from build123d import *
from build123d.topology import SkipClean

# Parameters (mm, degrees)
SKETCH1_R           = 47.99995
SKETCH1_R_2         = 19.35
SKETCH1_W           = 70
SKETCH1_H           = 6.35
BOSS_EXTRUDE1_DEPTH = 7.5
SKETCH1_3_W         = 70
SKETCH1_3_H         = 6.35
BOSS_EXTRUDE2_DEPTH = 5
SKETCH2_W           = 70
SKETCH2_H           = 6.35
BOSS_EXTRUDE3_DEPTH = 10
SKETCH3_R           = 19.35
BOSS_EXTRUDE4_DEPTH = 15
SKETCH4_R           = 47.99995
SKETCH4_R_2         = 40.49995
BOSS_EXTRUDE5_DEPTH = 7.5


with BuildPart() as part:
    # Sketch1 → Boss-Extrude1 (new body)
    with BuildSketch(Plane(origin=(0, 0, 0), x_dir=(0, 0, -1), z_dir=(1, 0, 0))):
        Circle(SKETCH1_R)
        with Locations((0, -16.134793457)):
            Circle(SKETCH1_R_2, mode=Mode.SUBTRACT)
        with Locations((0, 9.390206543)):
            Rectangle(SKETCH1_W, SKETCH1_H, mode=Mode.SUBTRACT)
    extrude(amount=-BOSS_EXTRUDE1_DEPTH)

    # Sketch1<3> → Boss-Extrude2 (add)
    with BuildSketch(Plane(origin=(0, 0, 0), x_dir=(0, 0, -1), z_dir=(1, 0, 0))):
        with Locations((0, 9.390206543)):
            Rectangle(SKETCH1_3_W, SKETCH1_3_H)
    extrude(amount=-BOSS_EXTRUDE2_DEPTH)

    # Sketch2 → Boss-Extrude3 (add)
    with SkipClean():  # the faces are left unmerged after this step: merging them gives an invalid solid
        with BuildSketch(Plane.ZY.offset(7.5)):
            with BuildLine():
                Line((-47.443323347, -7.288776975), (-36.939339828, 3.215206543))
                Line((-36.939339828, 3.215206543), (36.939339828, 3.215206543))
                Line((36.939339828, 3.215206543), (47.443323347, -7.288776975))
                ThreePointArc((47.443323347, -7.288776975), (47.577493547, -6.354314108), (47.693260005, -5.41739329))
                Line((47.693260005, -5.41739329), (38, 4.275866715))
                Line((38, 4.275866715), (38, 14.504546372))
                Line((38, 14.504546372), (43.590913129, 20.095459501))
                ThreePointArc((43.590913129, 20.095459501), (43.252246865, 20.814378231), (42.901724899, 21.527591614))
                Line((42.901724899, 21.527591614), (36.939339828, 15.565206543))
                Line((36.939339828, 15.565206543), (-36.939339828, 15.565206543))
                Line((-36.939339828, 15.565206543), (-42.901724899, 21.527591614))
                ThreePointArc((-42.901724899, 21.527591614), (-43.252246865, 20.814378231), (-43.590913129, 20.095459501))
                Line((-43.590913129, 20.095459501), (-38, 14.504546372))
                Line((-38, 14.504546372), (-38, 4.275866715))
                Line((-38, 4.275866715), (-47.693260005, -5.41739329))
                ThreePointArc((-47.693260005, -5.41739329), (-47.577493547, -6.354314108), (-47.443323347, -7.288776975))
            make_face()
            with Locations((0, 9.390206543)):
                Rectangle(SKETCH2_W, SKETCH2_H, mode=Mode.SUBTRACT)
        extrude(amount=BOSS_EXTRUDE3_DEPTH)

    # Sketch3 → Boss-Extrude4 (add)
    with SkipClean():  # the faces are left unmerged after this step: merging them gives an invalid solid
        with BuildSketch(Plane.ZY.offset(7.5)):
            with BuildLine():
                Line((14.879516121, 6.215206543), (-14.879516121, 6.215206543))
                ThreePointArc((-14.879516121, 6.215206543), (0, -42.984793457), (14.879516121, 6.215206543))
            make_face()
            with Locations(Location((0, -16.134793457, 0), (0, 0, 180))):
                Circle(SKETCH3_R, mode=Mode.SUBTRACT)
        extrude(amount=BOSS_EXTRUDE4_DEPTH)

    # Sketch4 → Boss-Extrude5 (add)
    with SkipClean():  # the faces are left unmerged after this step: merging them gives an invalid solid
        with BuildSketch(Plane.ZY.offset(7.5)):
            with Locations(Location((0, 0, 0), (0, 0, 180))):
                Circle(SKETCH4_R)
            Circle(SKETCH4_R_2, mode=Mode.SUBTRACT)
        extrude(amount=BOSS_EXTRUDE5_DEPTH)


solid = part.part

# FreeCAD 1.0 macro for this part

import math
import FreeCAD as App
import Part
import Sketcher

V = App.Vector


def add_polygon(sketch, points):
    """Adds a closed chain of lines whose ends are joined by coincident constraints."""
    first, n = sketch.GeometryCount, len(points)
    for a, b in zip(points, points[1:] + points[:1]):
        sketch.addGeometry(Part.LineSegment(App.Vector(*a, 0), App.Vector(*b, 0)), False)
    for i in range(n):
        sketch.addConstraint(Sketcher.Constraint("Coincident", first + i, 2, first + (i + 1) % n, 1))

doc = App.newDocument("Part")
body = doc.addObject("PartDesign::Body", "Body")

sketch1 = body.newObject("Sketcher::SketchObject", "Sketch")
sketch1.AttachmentSupport = (doc.getObject("YZ_Plane"), [""])
sketch1.MapMode = "FlatFace"
sketch1.addGeometry(Part.Circle(V(0, 0, 0), V(0, 0, 1), 48), False)
sketch1.addGeometry(Part.Circle(V(-16, 0, 0), V(0, 0, 1), 19), False)
add_polygon(sketch1, [(6, -35), (6, 35), (13, 35), (13, -35)])
sketch1.addConstraint(Sketcher.Constraint("Vertical", 2))
sketch1.addConstraint(Sketcher.Constraint("Horizontal", 3))
sketch1.addConstraint(Sketcher.Constraint("Vertical", 4))
sketch1.addConstraint(Sketcher.Constraint("Horizontal", 5))
sketch1.addConstraint(Sketcher.Constraint("Coincident", 0, 3, -1, 1))
sketch1.addConstraint(Sketcher.Constraint("PointOnObject", 1, 3, -1))
sketch1.addConstraint(Sketcher.Constraint("Diameter", 1, 38.7))
sketch1.addConstraint(Sketcher.Constraint("DistanceY", 2, 1, 2, 2, 70.0))
sketch1.addConstraint(Sketcher.Constraint("DistanceY", -1, 1, 2, 2, 35.0))
sketch1.addConstraint(Sketcher.Constraint("Diameter", 0, 95.9999))
sketch1.addConstraint(Sketcher.Constraint("DistanceX", 3, 1, 3, 2, 6.35))
sketch1.addConstraint(Sketcher.Constraint("DistanceX", 1, 3, 3, 2, 28.7))
sketch1.addConstraint(Sketcher.Constraint("DistanceX", 1, 3, -1, 1, 16.134793))
pad1 = body.newObject("PartDesign::Pad", "Pad")
pad1.Profile = sketch1
pad1.Length = 7.5
pad1.Reversed = True

sketch2 = body.newObject("Sketcher::SketchObject", "Sketch001")
sketch2.AttachmentSupport = (doc.getObject("YZ_Plane"), [""])
sketch2.MapMode = "FlatFace"
add_polygon(sketch2, [(13, 35), (6, 35), (6, -35), (13, -35)])
sketch2.addConstraint(Sketcher.Constraint("Horizontal", 0))
sketch2.addConstraint(Sketcher.Constraint("Vertical", 1))
sketch2.addConstraint(Sketcher.Constraint("Horizontal", 2))
sketch2.addConstraint(Sketcher.Constraint("Vertical", 3))
sketch2.addConstraint(Sketcher.Constraint("DistanceY", 1, 2, 1, 1, 70.0))
sketch2.addConstraint(Sketcher.Constraint("DistanceY", -1, 1, 0, 2, 35.0))
sketch2.addConstraint(Sketcher.Constraint("DistanceX", 0, 2, 0, 1, 6.35))
sketch2.addConstraint(Sketcher.Constraint("DistanceX", -1, 1, 0, 2, 6.215207))
pad2 = body.newObject("PartDesign::Pad", "Pad001")
pad2.Profile = sketch2
pad2.Length = 5
pad2.Reversed = True

sketch3 = body.newObject("Sketcher::SketchObject", "Sketch002")
sketch3.AttachmentSupport = (doc.getObject("YZ_Plane"), [""])
sketch3.MapMode = "FlatFace"
sketch3.AttachmentOffset = App.Placement(V(0, 0, -7.5), App.Rotation())
sketch3.addGeometry(Part.LineSegment(V(-7.3, -47.4, 0), V(3.2, -36.9, 0)), False)
sketch3.addGeometry(Part.LineSegment(V(3.2, -36.9, 0), V(3.2, 36.9, 0)), False)
sketch3.addGeometry(Part.LineSegment(V(3.2, 36.9, 0), V(-7.3, 47.4, 0)), False)
sketch3.addGeometry(Part.ArcOfCircle(Part.Circle(V(0, 0, 0), V(0, 0, 1), 48), math.radians(96.48), math.radians(98.73)), False)
sketch3.addGeometry(Part.LineSegment(V(-5.4, 47.7, 0), V(4.3, 38, 0)), False)
sketch3.addGeometry(Part.LineSegment(V(4.3, 38, 0), V(14.5, 38, 0)), False)
sketch3.addGeometry(Part.LineSegment(V(14.5, 38, 0), V(20.1, 43.6, 0)), False)
sketch3.addGeometry(Part.ArcOfCircle(Part.Circle(V(0, 0, 0), V(0, 0, 1), 48), math.radians(63.35), math.radians(65.25)), False)
sketch3.addGeometry(Part.LineSegment(V(21.5, 42.9, 0), V(15.6, 36.9, 0)), False)
sketch3.addGeometry(Part.LineSegment(V(15.6, 36.9, 0), V(15.6, -36.9, 0)), False)
sketch3.addGeometry(Part.LineSegment(V(15.6, -36.9, 0), V(21.5, -42.9, 0)), False)
sketch3.addGeometry(Part.ArcOfCircle(Part.Circle(V(0, 0, 0), V(0, 0, 1), 48), math.radians(-65.25), math.radians(-63.35)), False)
sketch3.addGeometry(Part.LineSegment(V(20.1, -43.6, 0), V(14.5, -38, 0)), False)
sketch3.addGeometry(Part.LineSegment(V(14.5, -38, 0), V(4.3, -38, 0)), False)
sketch3.addGeometry(Part.LineSegment(V(4.3, -38, 0), V(-5.4, -47.7, 0)), False)
sketch3.addGeometry(Part.ArcOfCircle(Part.Circle(V(0, 0, 0), V(0, 0, 1), 48), math.radians(-98.73), math.radians(-96.48)), False)
add_polygon(sketch3, [(6.2, 35), (6.2, -35), (12.6, -35), (12.6, 35)])
sketch3.addConstraint(Sketcher.Constraint("Coincident", 0, 2, 1, 1))
sketch3.addConstraint(Sketcher.Constraint("Coincident", 1, 2, 2, 1))
sketch3.addConstraint(Sketcher.Constraint("Coincident", 2, 2, 3, 2))
sketch3.addConstraint(Sketcher.Constraint("Coincident", 3, 1, 4, 1))
sketch3.addConstraint(Sketcher.Constraint("Coincident", 4, 2, 5, 1))
sketch3.addConstraint(Sketcher.Constraint("Coincident", 5, 2, 6, 1))
sketch3.addConstraint(Sketcher.Constraint("Coincident", 6, 2, 7, 2))
sketch3.addConstraint(Sketcher.Constraint("Coincident", 7, 1, 8, 1))
sketch3.addConstraint(Sketcher.Constraint("Coincident", 8, 2, 9, 1))
sketch3.addConstraint(Sketcher.Constraint("Coincident", 9, 2, 10, 1))
sketch3.addConstraint(Sketcher.Constraint("Coincident", 10, 2, 11, 2))
sketch3.addConstraint(Sketcher.Constraint("Coincident", 11, 1, 12, 1))
sketch3.addConstraint(Sketcher.Constraint("Coincident", 12, 2, 13, 1))
sketch3.addConstraint(Sketcher.Constraint("Coincident", 13, 2, 14, 1))
sketch3.addConstraint(Sketcher.Constraint("Coincident", 14, 2, 15, 2))
sketch3.addConstraint(Sketcher.Constraint("Coincident", 15, 1, 0, 1))
sketch3.addConstraint(Sketcher.Constraint("Vertical", 1))
sketch3.addConstraint(Sketcher.Constraint("Horizontal", 5))
sketch3.addConstraint(Sketcher.Constraint("Vertical", 9))
sketch3.addConstraint(Sketcher.Constraint("Horizontal", 13))
sketch3.addConstraint(Sketcher.Constraint("Vertical", 16))
sketch3.addConstraint(Sketcher.Constraint("Horizontal", 17))
sketch3.addConstraint(Sketcher.Constraint("Vertical", 18))
sketch3.addConstraint(Sketcher.Constraint("Horizontal", 19))
sketch3.addConstraint(Sketcher.Constraint("Coincident", 3, 3, -1, 1))
sketch3.addConstraint(Sketcher.Constraint("Coincident", 7, 3, -1, 1))
sketch3.addConstraint(Sketcher.Constraint("Coincident", 11, 3, -1, 1))
sketch3.addConstraint(Sketcher.Constraint("Coincident", 15, 3, -1, 1))
sketch3.addConstraint(Sketcher.Constraint("Equal", 3, 7))
sketch3.addConstraint(Sketcher.Constraint("Equal", 7, 11))
sketch3.addConstraint(Sketcher.Constraint("Equal", 11, 15))
sketch3.addConstraint(Sketcher.Constraint("Symmetric", 5, 2, 12, 2, -1))
sketch3.addConstraint(Sketcher.Constraint("Perpendicular", 0, 2))
sketch3.addConstraint(Sketcher.Constraint("Parallel", 2, 4))
sketch3.addConstraint(Sketcher.Constraint("Perpendicular", 4, 6))
sketch3.addConstraint(Sketcher.Constraint("Parallel", 6, 8))
sketch3.addConstraint(Sketcher.Constraint("Perpendicular", 8, 10))
sketch3.addConstraint(Sketcher.Constraint("Parallel", 10, 12))
sketch3.addConstraint(Sketcher.Constraint("Perpendicular", 12, 14))
sketch3.addConstraint(Sketcher.Constraint("Horizontal", 1, 2, 8, 2))
sketch3.addConstraint(Sketcher.Constraint("Horizontal", 0, 2, 9, 2))
sketch3.addConstraint(Sketcher.Constraint("Vertical", 7, 1, 10, 2))
sketch3.addConstraint(Sketcher.Constraint("Vertical", 6, 2, 11, 1))
sketch3.addConstraint(Sketcher.Constraint("Vertical", 4, 2, 13, 2))
sketch3.addConstraint(Sketcher.Constraint("DistanceY", 16, 2, 16, 1, 70.0))
sketch3.addConstraint(Sketcher.Constraint("DistanceY", -1, 1, 4, 2, 38.0))
sketch3.addConstraint(Sketcher.Constraint("DistanceY", 16, 2, -1, 1, 35.0))
sketch3.addConstraint(Sketcher.Constraint("DistanceX", 0, 2, 16, 2, 3.0))
sketch3.addConstraint(Sketcher.Constraint("DistanceX", 17, 2, 9, 2, 3.0))
sketch3.addConstraint(Sketcher.Constraint("DistanceX", 17, 1, 17, 2, 6.35))
sketch3.addConstraint(Sketcher.Constraint("Radius", 3, 47.999949))
sketch3.addConstraint(Sketcher.Constraint("DistanceX", 5, 1, 5, 2, 10.22868))
sketch3.addConstraint(Sketcher.Constraint("DistanceY", 1, 1, 1, 2, 73.87868))
sketch3.addConstraint(Sketcher.Constraint("DistanceX", 3, 1, 1, 2, 8.6326))
sketch3.addConstraint(Sketcher.Constraint("Distance", 4, 13.70834))
pad3 = body.newObject("PartDesign::Pad", "Pad002")
pad3.Profile = sketch3
pad3.Length = 10
pad3.Reversed = True

sketch4 = body.newObject("Sketcher::SketchObject", "Sketch003")
sketch4.AttachmentSupport = (doc.getObject("YZ_Plane"), [""])
sketch4.MapMode = "FlatFace"
sketch4.AttachmentOffset = App.Placement(V(0, 0, -7.5), App.Rotation())
sketch4.addGeometry(Part.LineSegment(V(6, 15, 0), V(6, -15, 0)), False)
sketch4.addGeometry(Part.ArcOfCircle(Part.Circle(V(-16, 0, 0), V(0, 0, 1), 27), math.radians(34), math.radians(326)), False)
sketch4.addGeometry(Part.Circle(V(-16, 0, 0), V(0, 0, 1), 19), False)
sketch4.addConstraint(Sketcher.Constraint("Coincident", 0, 1, 1, 1))
sketch4.addConstraint(Sketcher.Constraint("Coincident", 1, 2, 0, 2))
sketch4.addConstraint(Sketcher.Constraint("Vertical", 0))
sketch4.addConstraint(Sketcher.Constraint("Coincident", 2, 3, 1, 3))
sketch4.addConstraint(Sketcher.Constraint("PointOnObject", 1, 3, -1))
sketch4.addConstraint(Sketcher.Constraint("Diameter", 2, 38.7))
sketch4.addConstraint(Sketcher.Constraint("Radius", 1, 26.85))
sketch4.addConstraint(Sketcher.Constraint("DistanceX", 1, 3, 0, 1, 22.35))
sketch4.addConstraint(Sketcher.Constraint("DistanceX", 1, 3, -1, 1, 16.134793))
pad4 = body.newObject("PartDesign::Pad", "Pad003")
pad4.Profile = sketch4
pad4.Length = 15
pad4.Reversed = True

sketch5 = body.newObject("Sketcher::SketchObject", "Sketch004")
sketch5.AttachmentSupport = (doc.getObject("YZ_Plane"), [""])
sketch5.MapMode = "FlatFace"
sketch5.AttachmentOffset = App.Placement(V(0, 0, -7.5), App.Rotation())
sketch5.addGeometry(Part.Circle(V(0, 0, 0), V(0, 0, 1), 48), False)
sketch5.addGeometry(Part.Circle(V(0, 0, 0), V(0, 0, 1), 40), False)
sketch5.addConstraint(Sketcher.Constraint("Coincident", 0, 3, -1, 1))
sketch5.addConstraint(Sketcher.Constraint("Coincident", 1, 3, -1, 1))
sketch5.addConstraint(Sketcher.Constraint("Diameter", 0, 95.9999))
sketch5.addConstraint(Sketcher.Constraint("Diameter", 1, 80.9999))
pad5 = body.newObject("PartDesign::Pad", "Pad004")
pad5.Profile = sketch5
pad5.Length = 7.5
pad5.Reversed = True

doc.recompute()
